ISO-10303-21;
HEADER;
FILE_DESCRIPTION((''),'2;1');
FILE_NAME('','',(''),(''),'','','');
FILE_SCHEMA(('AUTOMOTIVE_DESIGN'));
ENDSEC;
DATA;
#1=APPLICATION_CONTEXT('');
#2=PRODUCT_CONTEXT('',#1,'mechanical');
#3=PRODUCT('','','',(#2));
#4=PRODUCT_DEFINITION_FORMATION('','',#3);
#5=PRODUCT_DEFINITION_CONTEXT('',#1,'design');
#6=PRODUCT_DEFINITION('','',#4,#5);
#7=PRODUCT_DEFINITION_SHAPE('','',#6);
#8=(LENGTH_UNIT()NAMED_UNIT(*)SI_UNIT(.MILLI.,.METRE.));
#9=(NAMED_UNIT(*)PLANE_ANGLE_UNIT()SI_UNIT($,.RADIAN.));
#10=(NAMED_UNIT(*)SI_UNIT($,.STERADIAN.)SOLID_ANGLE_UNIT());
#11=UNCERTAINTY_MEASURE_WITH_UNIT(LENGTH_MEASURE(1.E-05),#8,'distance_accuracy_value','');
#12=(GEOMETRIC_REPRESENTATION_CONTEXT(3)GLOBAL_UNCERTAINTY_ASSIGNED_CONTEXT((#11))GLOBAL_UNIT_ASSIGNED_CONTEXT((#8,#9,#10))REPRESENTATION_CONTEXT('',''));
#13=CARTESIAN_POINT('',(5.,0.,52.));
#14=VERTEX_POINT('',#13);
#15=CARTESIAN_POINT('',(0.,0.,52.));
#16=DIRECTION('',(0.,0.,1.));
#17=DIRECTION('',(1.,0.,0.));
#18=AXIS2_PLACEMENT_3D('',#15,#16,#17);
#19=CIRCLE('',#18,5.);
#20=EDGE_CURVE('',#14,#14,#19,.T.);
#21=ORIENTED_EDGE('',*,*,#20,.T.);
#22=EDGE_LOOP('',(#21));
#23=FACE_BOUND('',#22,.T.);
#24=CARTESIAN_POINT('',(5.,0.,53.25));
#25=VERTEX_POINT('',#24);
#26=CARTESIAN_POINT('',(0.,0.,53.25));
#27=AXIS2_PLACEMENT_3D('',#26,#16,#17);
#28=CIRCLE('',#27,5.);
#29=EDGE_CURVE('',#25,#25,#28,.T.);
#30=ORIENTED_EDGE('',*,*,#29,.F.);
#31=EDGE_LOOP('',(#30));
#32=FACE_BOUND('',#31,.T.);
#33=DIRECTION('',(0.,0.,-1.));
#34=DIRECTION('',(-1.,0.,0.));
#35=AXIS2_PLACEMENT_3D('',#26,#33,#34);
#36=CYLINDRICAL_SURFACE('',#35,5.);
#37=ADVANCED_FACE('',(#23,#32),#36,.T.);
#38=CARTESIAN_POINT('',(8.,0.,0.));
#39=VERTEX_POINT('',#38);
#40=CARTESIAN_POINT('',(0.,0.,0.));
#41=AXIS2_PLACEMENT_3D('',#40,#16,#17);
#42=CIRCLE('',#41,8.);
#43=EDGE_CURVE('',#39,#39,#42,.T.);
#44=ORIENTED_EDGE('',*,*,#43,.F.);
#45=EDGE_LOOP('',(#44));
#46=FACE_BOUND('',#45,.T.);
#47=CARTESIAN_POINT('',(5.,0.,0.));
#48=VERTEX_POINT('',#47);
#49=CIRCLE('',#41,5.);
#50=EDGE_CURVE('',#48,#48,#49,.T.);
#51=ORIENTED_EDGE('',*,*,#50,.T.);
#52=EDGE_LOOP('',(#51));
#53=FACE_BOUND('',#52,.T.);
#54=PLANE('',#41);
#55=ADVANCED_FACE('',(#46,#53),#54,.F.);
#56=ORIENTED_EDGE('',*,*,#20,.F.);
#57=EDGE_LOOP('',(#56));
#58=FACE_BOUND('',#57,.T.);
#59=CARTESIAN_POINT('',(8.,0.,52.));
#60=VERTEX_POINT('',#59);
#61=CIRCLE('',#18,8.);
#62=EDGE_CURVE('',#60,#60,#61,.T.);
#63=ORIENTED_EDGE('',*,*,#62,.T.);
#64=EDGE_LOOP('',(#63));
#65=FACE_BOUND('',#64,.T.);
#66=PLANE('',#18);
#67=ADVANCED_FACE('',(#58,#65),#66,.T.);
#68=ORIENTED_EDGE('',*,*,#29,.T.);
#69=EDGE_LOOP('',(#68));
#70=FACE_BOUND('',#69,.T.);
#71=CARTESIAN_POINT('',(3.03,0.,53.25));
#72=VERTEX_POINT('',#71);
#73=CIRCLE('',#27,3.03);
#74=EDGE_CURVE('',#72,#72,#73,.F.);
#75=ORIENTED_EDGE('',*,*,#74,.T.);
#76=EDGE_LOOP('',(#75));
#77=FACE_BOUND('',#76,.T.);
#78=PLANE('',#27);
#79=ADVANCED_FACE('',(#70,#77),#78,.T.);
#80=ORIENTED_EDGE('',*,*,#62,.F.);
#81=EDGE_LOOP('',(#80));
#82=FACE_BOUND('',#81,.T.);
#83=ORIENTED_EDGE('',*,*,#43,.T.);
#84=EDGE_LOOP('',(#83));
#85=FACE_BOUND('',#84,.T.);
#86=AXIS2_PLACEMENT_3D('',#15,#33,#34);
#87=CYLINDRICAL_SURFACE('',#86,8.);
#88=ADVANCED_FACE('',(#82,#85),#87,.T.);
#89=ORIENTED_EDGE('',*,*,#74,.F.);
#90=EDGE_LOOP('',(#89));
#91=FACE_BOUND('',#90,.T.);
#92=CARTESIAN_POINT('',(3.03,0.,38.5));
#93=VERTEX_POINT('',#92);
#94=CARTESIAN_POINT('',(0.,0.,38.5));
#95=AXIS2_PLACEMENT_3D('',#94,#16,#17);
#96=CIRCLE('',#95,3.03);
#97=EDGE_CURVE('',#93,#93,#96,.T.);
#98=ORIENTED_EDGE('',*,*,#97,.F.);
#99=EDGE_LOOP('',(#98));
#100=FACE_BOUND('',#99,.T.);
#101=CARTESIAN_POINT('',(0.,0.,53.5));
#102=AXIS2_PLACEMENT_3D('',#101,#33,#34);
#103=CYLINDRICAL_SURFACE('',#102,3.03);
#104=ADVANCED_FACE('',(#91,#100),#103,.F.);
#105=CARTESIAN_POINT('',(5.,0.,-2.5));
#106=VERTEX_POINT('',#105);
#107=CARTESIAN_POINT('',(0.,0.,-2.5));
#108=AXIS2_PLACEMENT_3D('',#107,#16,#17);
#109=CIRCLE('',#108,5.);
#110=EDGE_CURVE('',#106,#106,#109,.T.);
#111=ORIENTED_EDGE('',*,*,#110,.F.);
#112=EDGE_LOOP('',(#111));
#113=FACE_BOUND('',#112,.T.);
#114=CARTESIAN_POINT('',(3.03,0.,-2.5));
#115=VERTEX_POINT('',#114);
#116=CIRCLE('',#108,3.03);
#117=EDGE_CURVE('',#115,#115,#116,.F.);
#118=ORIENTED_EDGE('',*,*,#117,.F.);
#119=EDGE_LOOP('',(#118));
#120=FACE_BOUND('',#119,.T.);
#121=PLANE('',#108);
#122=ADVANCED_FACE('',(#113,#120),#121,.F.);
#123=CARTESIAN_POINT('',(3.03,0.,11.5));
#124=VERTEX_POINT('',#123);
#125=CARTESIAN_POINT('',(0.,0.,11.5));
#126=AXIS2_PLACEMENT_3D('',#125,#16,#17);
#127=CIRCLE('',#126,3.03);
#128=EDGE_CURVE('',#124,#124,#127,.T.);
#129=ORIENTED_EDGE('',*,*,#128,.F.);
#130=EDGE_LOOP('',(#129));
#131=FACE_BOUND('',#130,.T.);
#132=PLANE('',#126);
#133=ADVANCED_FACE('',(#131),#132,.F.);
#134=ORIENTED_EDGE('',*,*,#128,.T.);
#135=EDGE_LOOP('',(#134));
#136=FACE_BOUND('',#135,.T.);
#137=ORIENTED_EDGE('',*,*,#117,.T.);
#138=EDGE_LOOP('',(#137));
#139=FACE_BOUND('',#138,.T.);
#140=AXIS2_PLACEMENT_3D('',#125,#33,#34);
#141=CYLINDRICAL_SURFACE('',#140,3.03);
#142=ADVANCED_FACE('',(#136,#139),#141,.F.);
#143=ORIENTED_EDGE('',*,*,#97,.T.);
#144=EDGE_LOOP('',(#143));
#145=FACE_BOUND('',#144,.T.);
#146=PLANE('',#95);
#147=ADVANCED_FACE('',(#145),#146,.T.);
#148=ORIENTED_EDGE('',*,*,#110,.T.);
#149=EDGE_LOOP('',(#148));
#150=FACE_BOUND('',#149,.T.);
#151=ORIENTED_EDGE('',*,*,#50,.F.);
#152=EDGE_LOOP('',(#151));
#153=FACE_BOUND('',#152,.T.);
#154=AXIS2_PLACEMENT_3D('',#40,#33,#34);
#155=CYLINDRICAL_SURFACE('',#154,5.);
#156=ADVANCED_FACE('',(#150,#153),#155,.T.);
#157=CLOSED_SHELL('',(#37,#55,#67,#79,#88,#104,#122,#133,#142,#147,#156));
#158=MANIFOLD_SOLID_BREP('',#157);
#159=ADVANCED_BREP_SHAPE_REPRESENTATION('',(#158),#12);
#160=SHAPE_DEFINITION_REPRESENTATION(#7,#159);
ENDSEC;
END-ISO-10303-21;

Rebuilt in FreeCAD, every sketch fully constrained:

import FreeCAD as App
import Part
import Sketcher

V = App.Vector

doc = App.newDocument("Part")
params = doc.addObject("Spreadsheet::Sheet", "Params")
for row, (alias, value) in enumerate([
    ("sketch1_diameter", "16 mm"),
    ("pad1_length", "52 mm"),
    ("sketch2_diameter", "10 mm"),
    ("pad2_length", "2.5 mm"),
    ("sketch3_diameter", "10 mm"),
    ("pad3_length", "1.25 mm"),
    ("sketch4_diameter", "6.06 mm"),
    ("pocket1_length", "14.1 mm"),
    ("sketch5_diameter", "6.06 mm"),
    ("pocket2_length", "15 mm"),
], start=1):
    params.set(f"A{row}", alias)
    params.set(f"B{row}", "=" + value)
    params.setAlias(f"B{row}", alias)

body = doc.addObject("PartDesign::Body", "Body")

# Sketch on XY plane
sketch1 = body.newObject("Sketcher::SketchObject", "Sketch")
sketch1.AttachmentSupport = (doc.getObject("XY_Plane"), [""])
sketch1.MapMode = "FlatFace"
sketch1.addGeometry(Part.Circle(V(0, 0, 0), V(0, 0, 1), 8), False)
sketch1.addConstraint(Sketcher.Constraint("Coincident", 0, 3, -1, 1))
sketch1.addConstraint(Sketcher.Constraint("Diameter", 0, 16.0))
sketch1.setExpression("Constraints[1]", "Params.sketch1_diameter")
pad1 = body.newObject("PartDesign::Pad", "Pad")
pad1.Profile = sketch1
pad1.setExpression("Length", "Params.pad1_length")

# Sketch on XY plane
sketch2 = body.newObject("Sketcher::SketchObject", "Sketch001")
sketch2.AttachmentSupport = (doc.getObject("XY_Plane"), [""])
sketch2.MapMode = "FlatFace"
sketch2.AttachmentOffset = App.Placement(V(0, 0, -2.5), App.Rotation())
sketch2.addGeometry(Part.Circle(V(0, 0, 0), V(0, 0, 1), 5), False)
sketch2.addConstraint(Sketcher.Constraint("Coincident", 0, 3, -1, 1))
sketch2.addConstraint(Sketcher.Constraint("Diameter", 0, 10.0))
sketch2.setExpression("Constraints[1]", "Params.sketch2_diameter")
pad2 = body.newObject("PartDesign::Pad", "Pad001")
pad2.Profile = sketch2
pad2.setExpression("Length", "Params.pad2_length")

# Sketch on XY plane
sketch3 = body.newObject("Sketcher::SketchObject", "Sketch002")
sketch3.AttachmentSupport = (doc.getObject("XY_Plane"), [""])
sketch3.MapMode = "FlatFace"
sketch3.AttachmentOffset = App.Placement(V(0, 0, 52), App.Rotation())
sketch3.addGeometry(Part.Circle(V(0, 0, 0), V(0, 0, 1), 5), False)
sketch3.addConstraint(Sketcher.Constraint("Coincident", 0, 3, -1, 1))
sketch3.addConstraint(Sketcher.Constraint("Diameter", 0, 10.0))
sketch3.setExpression("Constraints[1]", "Params.sketch3_diameter")
pad3 = body.newObject("PartDesign::Pad", "Pad002")
pad3.Profile = sketch3
pad3.setExpression("Length", "Params.pad3_length")

# Sketch on XY plane
sketch4 = body.newObject("Sketcher::SketchObject", "Sketch003")
sketch4.AttachmentSupport = (doc.getObject("XY_Plane"), [""])
sketch4.MapMode = "FlatFace"
sketch4.AttachmentOffset = App.Placement(V(0, 0, -2.6), App.Rotation())
sketch4.addGeometry(Part.Circle(V(0, 0, 0), V(0, 0, 1), 3.03), False)
sketch4.addConstraint(Sketcher.Constraint("Coincident", 0, 3, -1, 1))
sketch4.addConstraint(Sketcher.Constraint("Diameter", 0, 6.06))
sketch4.setExpression("Constraints[1]", "Params.sketch4_diameter")
pocket1 = body.newObject("PartDesign::Pocket", "Pocket")
pocket1.Profile = sketch4
pocket1.setExpression("Length", "Params.pocket1_length")
pocket1.Reversed = True

# Sketch on XY plane
sketch5 = body.newObject("Sketcher::SketchObject", "Sketch004")
sketch5.AttachmentSupport = (doc.getObject("XY_Plane"), [""])
sketch5.MapMode = "FlatFace"
sketch5.AttachmentOffset = App.Placement(V(0, 0, 38.5), App.Rotation())
sketch5.addGeometry(Part.Circle(V(0, 0, 0), V(0, 0, 1), 3.03), False)
sketch5.addConstraint(Sketcher.Constraint("Coincident", 0, 3, -1, 1))
sketch5.addConstraint(Sketcher.Constraint("Diameter", 0, 6.06))
sketch5.setExpression("Constraints[1]", "Params.sketch5_diameter")
pocket2 = body.newObject("PartDesign::Pocket", "Pocket001")
pocket2.Profile = sketch5
pocket2.setExpression("Length", "Params.pocket2_length")
pocket2.Reversed = True

doc.recompute()
